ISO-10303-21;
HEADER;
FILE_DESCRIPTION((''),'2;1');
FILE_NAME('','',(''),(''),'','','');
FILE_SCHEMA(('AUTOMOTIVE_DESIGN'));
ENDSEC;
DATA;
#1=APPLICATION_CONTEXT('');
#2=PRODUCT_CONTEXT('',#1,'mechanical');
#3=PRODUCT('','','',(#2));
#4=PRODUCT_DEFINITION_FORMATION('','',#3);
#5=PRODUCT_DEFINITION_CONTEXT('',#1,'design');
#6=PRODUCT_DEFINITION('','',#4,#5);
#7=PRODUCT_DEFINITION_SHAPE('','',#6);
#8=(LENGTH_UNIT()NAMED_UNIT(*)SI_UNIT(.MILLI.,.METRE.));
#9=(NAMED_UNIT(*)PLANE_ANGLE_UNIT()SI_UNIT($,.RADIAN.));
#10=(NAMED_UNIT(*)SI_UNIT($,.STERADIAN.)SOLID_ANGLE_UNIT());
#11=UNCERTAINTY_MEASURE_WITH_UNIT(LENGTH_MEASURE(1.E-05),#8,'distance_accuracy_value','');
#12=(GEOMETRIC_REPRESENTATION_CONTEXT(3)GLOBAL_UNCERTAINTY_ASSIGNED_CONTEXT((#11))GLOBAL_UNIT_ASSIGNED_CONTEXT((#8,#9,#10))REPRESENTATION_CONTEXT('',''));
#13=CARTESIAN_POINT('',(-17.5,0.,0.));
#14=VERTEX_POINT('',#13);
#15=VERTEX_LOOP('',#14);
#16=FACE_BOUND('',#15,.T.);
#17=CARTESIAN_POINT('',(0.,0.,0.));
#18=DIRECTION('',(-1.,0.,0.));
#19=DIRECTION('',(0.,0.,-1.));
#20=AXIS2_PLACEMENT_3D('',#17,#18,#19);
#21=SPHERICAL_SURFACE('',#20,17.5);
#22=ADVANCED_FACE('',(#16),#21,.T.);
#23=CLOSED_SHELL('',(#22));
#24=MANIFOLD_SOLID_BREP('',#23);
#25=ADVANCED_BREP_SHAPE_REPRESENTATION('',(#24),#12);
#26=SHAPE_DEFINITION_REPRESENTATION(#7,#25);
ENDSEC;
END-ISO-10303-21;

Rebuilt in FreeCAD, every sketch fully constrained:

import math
import FreeCAD as App
import Part
import Sketcher
Q = App.Units.Quantity

doc = App.newDocument("Part")
body = doc.addObject("PartDesign::Body", "Body")

# Sketch on XZ plane
sketch1 = doc.addObject("Sketcher::SketchObject", "Sketch")
body.addObject(sketch1)
sketch1.AttachmentSupport = (doc.XZ_Plane, [""])
sketch1.MapMode = "FlatFace"
sketch1.addGeometry([
    Part.LineSegment(App.Vector(17.5, 0, 0), App.Vector(-17.5, 0, 0)),
    Part.ArcOfCircle(Part.Circle(App.Vector(0, 0, 0), App.Vector(0, 0, 1), 17.5), math.radians(0), math.radians(180)),
], False)
sketch1.addConstraint([
    Sketcher.Constraint("Coincident", 0, 1, 1, 1),
    Sketcher.Constraint("Coincident", 1, 2, 0, 2),
    Sketcher.Constraint("Horizontal", 0),
    Sketcher.Constraint("Coincident", 1, 3, -1, 1),
    Sketcher.Constraint("PointOnObject", 0, 1, -1),
    Sketcher.Constraint("Radius", 1, Q("17.5 mm")),
])
revolution = doc.addObject("PartDesign::Revolution", "Revolution")
body.addObject(revolution)
revolution.Profile = sketch1
revolution.ReferenceAxis = (sketch1, ["H_Axis"])
revolution.Angle = 360

doc.recompute()
